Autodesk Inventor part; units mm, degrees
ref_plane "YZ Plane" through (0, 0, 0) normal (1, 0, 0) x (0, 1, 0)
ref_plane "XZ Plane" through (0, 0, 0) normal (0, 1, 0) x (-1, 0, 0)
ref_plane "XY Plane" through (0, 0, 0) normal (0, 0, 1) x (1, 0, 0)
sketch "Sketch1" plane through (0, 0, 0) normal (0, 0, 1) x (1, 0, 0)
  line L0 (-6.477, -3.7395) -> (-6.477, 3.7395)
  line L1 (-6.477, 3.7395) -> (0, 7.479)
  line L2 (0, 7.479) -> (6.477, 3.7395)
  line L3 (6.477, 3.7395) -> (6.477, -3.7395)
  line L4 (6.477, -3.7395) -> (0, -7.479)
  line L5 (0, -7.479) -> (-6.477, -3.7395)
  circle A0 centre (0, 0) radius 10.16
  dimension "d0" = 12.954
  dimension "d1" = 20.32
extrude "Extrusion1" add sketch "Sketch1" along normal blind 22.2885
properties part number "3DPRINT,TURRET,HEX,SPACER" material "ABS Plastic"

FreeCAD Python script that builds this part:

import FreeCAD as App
import Part
import Sketcher

V = App.Vector
Q = App.Units.Quantity

doc = App.newDocument("Part")
body = doc.addObject("PartDesign::Body", "Body")

# Sketch on XY plane
sketch1 = body.newObject("Sketcher::SketchObject", "Sketch")
sketch1.AttachmentSupport = (doc.getObject("XY_Plane"), [""])
sketch1.MapMode = "FlatFace"
sketch1.addGeometry([
    Part.Circle(V(0, 0, 0), V(0, 0, 1), 10),  # 0
    Part.LineSegment(V(0, -7, 0), V(-6, -4, 0)),  # 1
    Part.LineSegment(V(-6, -4, 0), V(-6, 4, 0)),  # 2
    Part.LineSegment(V(-6, 4, 0), V(0, 7, 0)),  # 3
    Part.LineSegment(V(0, 7, 0), V(6, 4, 0)),  # 4
    Part.LineSegment(V(6, 4, 0), V(6, -4, 0)),  # 5
    Part.LineSegment(V(6, -4, 0), V(0, -7, 0)),  # 6
], False)
sketch1.addConstraint([
    Sketcher.Constraint("Coincident", 1, 2, 2, 1),
    Sketcher.Constraint("Coincident", 2, 2, 3, 1),
    Sketcher.Constraint("Coincident", 3, 2, 4, 1),
    Sketcher.Constraint("Coincident", 4, 2, 5, 1),
    Sketcher.Constraint("Coincident", 5, 2, 6, 1),
    Sketcher.Constraint("Coincident", 6, 2, 1, 1),
    Sketcher.Constraint("Vertical", 2),
    Sketcher.Constraint("Vertical", 5),
    Sketcher.Constraint("Coincident", 0, 3, -1, 1),
    Sketcher.Constraint("Symmetric", 1, 2, 4, 2, -1, 1),
    Sketcher.Constraint("Symmetric", 3, 2, 6, 2, -1, 1),
    Sketcher.Constraint("PointOnObject", 3, 2, -2),
    Sketcher.Constraint("Parallel", 3, 6),
    Sketcher.Constraint("Horizontal", 2, 2, 4, 2),
    Sketcher.Constraint("Diameter", 0, Q("0.8 in")),
    Sketcher.Constraint("DistanceX", 2, 2, 4, 2, Q("0.51 in")),
    Sketcher.Constraint("Angle", 1, Q("150 deg")),
    Sketcher.Constraint("DistanceY", 2, 1, 2, 2, Q("7.479 mm")),
])
pad1 = body.newObject("PartDesign::Pad", "Pad")
pad1.Profile = sketch1
pad1.Length = Q("0.8775 in")

doc.recompute()
